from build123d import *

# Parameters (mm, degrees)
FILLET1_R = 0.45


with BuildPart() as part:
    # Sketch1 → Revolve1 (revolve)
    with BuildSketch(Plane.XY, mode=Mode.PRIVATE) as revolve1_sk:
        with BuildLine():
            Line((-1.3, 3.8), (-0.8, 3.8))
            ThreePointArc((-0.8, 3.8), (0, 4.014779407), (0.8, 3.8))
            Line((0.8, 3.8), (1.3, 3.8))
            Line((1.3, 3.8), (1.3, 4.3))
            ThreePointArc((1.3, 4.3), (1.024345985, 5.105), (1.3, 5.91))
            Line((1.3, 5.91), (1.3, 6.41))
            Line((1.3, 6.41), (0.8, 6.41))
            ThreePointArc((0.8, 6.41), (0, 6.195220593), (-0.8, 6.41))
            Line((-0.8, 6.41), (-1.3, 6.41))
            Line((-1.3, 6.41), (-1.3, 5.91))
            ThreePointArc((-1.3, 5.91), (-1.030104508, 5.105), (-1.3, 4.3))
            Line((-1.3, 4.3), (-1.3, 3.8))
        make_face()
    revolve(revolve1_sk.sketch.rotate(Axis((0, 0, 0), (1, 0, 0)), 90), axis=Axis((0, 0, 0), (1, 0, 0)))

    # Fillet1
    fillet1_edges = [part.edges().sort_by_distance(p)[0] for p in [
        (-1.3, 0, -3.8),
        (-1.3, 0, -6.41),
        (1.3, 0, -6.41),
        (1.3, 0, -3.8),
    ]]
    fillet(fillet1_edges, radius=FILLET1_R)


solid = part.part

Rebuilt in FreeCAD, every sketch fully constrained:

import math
import FreeCAD as App
import Part
import Sketcher
from FreeCAD import Vector
Q = App.Units.Quantity


def edges_at(feature, points):
    """Names of the edges that pass closest to the given points."""
    edges = feature.Shape.Edges
    near = lambda p: min(range(len(edges)), key=lambda i: edges[i].distToShape(Part.Vertex(*p))[0])
    return sorted({f"Edge{near(p) + 1}" for p in points})

doc = App.newDocument("Part")
body = doc.addObject("PartDesign::Body", "Body")

# Sketch on XY plane
sketch1 = body.newObject("Sketcher::SketchObject", "Sketch")
sketch1.AttachmentSupport = (doc.getObject("XY_Plane"), [""])
sketch1.MapMode = "FlatFace"
sketch1.addGeometry([
    Part.LineSegment(Vector(-1.3, 3.8, 0), Vector(-0.8, 3.8, 0)),  # 0
    Part.ArcOfCircle(Part.Circle(Vector(0, 2.4, 0), Vector(0, 0, 1), 1.6), math.radians(60), math.radians(120)),  # 1
    Part.LineSegment(Vector(0.8, 3.8, 0), Vector(1.3, 3.8, 0)),  # 2
    Part.LineSegment(Vector(1.3, 3.8, 0), Vector(1.3, 4.3, 0)),  # 3
    Part.ArcOfCircle(Part.Circle(Vector(2.3, 5.1, 0), Vector(0, 0, 1), 1.3), math.radians(142), math.radians(218)),  # 4
    Part.LineSegment(Vector(1.3, 5.9, 0), Vector(1.3, 6.4, 0)),  # 5
    Part.LineSegment(Vector(1.3, 6.4, 0), Vector(0.8, 6.4, 0)),  # 6
    Part.ArcOfCircle(Part.Circle(Vector(0, 7.8, 0), Vector(0, 0, 1), 1.6), math.radians(-120), math.radians(-60)),  # 7
    Part.LineSegment(Vector(-0.8, 6.4, 0), Vector(-1.3, 6.4, 0)),  # 8
    Part.LineSegment(Vector(-1.3, 6.4, 0), Vector(-1.3, 5.9, 0)),  # 9
    Part.ArcOfCircle(Part.Circle(Vector(-2.4, 5.1, 0), Vector(0, 0, 1), 1.3), math.radians(-37), math.radians(37)),  # 10
    Part.LineSegment(Vector(-1.3, 4.3, 0), Vector(-1.3, 3.8, 0)),  # 11
], False)
sketch1.addConstraint([
    Sketcher.Constraint("Coincident", 0, 2, 1, 2),
    Sketcher.Constraint("Coincident", 1, 1, 2, 1),
    Sketcher.Constraint("Coincident", 2, 2, 3, 1),
    Sketcher.Constraint("Coincident", 3, 2, 4, 2),
    Sketcher.Constraint("Coincident", 4, 1, 5, 1),
    Sketcher.Constraint("Coincident", 5, 2, 6, 1),
    Sketcher.Constraint("Coincident", 6, 2, 7, 2),
    Sketcher.Constraint("Coincident", 7, 1, 8, 1),
    Sketcher.Constraint("Coincident", 8, 2, 9, 1),
    Sketcher.Constraint("Coincident", 9, 2, 10, 2),
    Sketcher.Constraint("Coincident", 10, 1, 11, 1),
    Sketcher.Constraint("Coincident", 11, 2, 0, 1),
    Sketcher.Constraint("Horizontal", 0),
    Sketcher.Constraint("Horizontal", 2),
    Sketcher.Constraint("Vertical", 3),
    Sketcher.Constraint("Vertical", 5),
    Sketcher.Constraint("Horizontal", 6),
    Sketcher.Constraint("Horizontal", 8),
    Sketcher.Constraint("Vertical", 9),
    Sketcher.Constraint("Vertical", 11),
    Sketcher.Constraint("Equal", 1, 7),
    Sketcher.Constraint("Symmetric", 0, 2, 1, 1, -2),
    Sketcher.Constraint("Symmetric", 6, 2, 7, 1, -2),
    Sketcher.Constraint("Symmetric", 4, 1, 9, 2, -2),
    Sketcher.Constraint("Symmetric", 3, 2, 10, 1, -2),
    Sketcher.Constraint("Horizontal", 4, 3, 10, 3),
    Sketcher.Constraint("Vertical", 1, 1, 6, 2),
    Sketcher.Constraint("Equal", 8, 3),
    Sketcher.Constraint("Equal", 3, 5),
    Sketcher.Constraint("DistanceX", 0, 1, 0, 2, Q("0.5 mm")),
    Sketcher.Constraint("DistanceX", 0, 2, -1, 1, Q("0.8 mm")),
    Sketcher.Constraint("DistanceY", -1, 1, 0, 2, Q("3.8 mm")),
    Sketcher.Constraint("DistanceY", -1, 1, 4, 1, Q("5.91 mm")),
    Sketcher.Constraint("Radius", 1, Q("1.59729 mm")),
    Sketcher.Constraint("Radius", 4, Q("1.313259 mm")),
    Sketcher.Constraint("Radius", 10, Q("1.335459 mm")),
])
revolution = body.newObject("PartDesign::Revolution", "Revolution")
revolution.Profile = sketch1
revolution.ReferenceAxis = (sketch1, ["H_Axis"])
revolution.Angle = 360
doc.recompute()

fillet = body.newObject("PartDesign::Fillet", "Fillet")
fillet.Base = (revolution, edges_at(revolution, [
    (-1.3, 0, -3.8),
    (-1.3, 0, -6.41),
    (1.3, 0, -6.41),
    (1.3, 0, -3.8),
]))
fillet.Radius = 0.45

doc.recompute()
